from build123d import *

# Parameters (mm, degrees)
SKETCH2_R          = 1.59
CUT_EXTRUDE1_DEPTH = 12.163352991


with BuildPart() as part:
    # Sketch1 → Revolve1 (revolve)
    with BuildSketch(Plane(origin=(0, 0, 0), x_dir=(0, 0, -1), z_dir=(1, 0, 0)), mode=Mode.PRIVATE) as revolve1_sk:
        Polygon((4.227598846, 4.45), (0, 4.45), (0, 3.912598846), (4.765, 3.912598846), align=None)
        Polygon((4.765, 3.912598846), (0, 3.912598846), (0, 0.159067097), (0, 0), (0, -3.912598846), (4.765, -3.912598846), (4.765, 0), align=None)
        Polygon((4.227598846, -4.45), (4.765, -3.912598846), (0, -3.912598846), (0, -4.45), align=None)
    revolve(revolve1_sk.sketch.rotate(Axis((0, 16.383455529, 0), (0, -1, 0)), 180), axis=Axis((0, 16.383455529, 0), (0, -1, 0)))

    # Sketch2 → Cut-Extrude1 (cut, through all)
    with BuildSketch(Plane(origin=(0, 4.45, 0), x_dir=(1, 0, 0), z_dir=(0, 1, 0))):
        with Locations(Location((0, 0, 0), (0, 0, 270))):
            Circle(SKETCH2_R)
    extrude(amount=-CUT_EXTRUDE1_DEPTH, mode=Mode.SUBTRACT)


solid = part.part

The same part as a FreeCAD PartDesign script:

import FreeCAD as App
import Part
import Sketcher

doc = App.newDocument("Part")
body = doc.addObject("PartDesign::Body", "Body")

sketch1 = body.newObject("Sketcher::SketchObject", "Sketch")
sketch1.AttachmentSupport = (doc.getObject("YZ_Plane"), [""])
sketch1.MapMode = "FlatFace"
sketch1.addGeometry([
    Part.LineSegment(App.Vector(4.5, -4.2, 0), App.Vector(4.5, 0, 0)),
    Part.LineSegment(App.Vector(4.5, 0, 0), App.Vector(-4.5, 0, 0)),
    Part.LineSegment(App.Vector(-4.5, 0, 0), App.Vector(-4.5, -4.2, 0)),
    Part.LineSegment(App.Vector(-4.5, -4.2, 0), App.Vector(-3.9, -4.8, 0)),
    Part.LineSegment(App.Vector(-3.9, -4.8, 0), App.Vector(3.9, -4.8, 0)),
    Part.LineSegment(App.Vector(3.9, -4.8, 0), App.Vector(4.5, -4.2, 0)),
], False)
sketch1.addConstraint([
    Sketcher.Constraint("Coincident", 0, 2, 1, 1),
    Sketcher.Constraint("Coincident", 1, 2, 2, 1),
    Sketcher.Constraint("Coincident", 2, 2, 3, 1),
    Sketcher.Constraint("Coincident", 3, 2, 4, 1),
    Sketcher.Constraint("Coincident", 4, 2, 5, 1),
    Sketcher.Constraint("Coincident", 5, 2, 0, 1),
    Sketcher.Constraint("Vertical", 0),
    Sketcher.Constraint("Horizontal", 1),
    Sketcher.Constraint("Vertical", 2),
    Sketcher.Constraint("Horizontal", 4),
    Sketcher.Constraint("Symmetric", 0, 2, 1, 2, -1, 1),
    Sketcher.Constraint("Perpendicular", 3, 5),
    Sketcher.Constraint("Horizontal", 2, 2, 5, 2),
    Sketcher.Constraint("Equal", 3, 5),
    Sketcher.Constraint("DistanceX", 1, 2, 1, 1, 8.9),
    Sketcher.Constraint("Distance", 3, 0.76),
    Sketcher.Constraint("DistanceY", 0, 1, 0, 2, 4.227599),
])
revolution = body.newObject("PartDesign::Revolution", "Revolution")
revolution.Profile = sketch1
revolution.ReferenceAxis = (sketch1, ["H_Axis"])
revolution.Angle = 360

sketch2 = body.newObject("Sketcher::SketchObject", "Sketch001")
sketch2.AttachmentSupport = (doc.getObject("XZ_Plane"), [""])
sketch2.MapMode = "FlatFace"
sketch2.AttachmentOffset = App.Placement(App.Vector(0, 0, -4.45), App.Rotation())
sketch2.addGeometry(Part.Circle(App.Vector(0, 0, 0), App.Vector(0, 0, 1), 1.6), False)
sketch2.addConstraint([
    Sketcher.Constraint("Coincident", 0, 3, -1, 1),
    Sketcher.Constraint("Diameter", 0, 3.18),
])
pocket1 = body.newObject("PartDesign::Pocket", "Pocket")
pocket1.Profile = sketch2
pocket1.Type = "ThroughAll"
pocket1.Reversed = True

doc.recompute()
